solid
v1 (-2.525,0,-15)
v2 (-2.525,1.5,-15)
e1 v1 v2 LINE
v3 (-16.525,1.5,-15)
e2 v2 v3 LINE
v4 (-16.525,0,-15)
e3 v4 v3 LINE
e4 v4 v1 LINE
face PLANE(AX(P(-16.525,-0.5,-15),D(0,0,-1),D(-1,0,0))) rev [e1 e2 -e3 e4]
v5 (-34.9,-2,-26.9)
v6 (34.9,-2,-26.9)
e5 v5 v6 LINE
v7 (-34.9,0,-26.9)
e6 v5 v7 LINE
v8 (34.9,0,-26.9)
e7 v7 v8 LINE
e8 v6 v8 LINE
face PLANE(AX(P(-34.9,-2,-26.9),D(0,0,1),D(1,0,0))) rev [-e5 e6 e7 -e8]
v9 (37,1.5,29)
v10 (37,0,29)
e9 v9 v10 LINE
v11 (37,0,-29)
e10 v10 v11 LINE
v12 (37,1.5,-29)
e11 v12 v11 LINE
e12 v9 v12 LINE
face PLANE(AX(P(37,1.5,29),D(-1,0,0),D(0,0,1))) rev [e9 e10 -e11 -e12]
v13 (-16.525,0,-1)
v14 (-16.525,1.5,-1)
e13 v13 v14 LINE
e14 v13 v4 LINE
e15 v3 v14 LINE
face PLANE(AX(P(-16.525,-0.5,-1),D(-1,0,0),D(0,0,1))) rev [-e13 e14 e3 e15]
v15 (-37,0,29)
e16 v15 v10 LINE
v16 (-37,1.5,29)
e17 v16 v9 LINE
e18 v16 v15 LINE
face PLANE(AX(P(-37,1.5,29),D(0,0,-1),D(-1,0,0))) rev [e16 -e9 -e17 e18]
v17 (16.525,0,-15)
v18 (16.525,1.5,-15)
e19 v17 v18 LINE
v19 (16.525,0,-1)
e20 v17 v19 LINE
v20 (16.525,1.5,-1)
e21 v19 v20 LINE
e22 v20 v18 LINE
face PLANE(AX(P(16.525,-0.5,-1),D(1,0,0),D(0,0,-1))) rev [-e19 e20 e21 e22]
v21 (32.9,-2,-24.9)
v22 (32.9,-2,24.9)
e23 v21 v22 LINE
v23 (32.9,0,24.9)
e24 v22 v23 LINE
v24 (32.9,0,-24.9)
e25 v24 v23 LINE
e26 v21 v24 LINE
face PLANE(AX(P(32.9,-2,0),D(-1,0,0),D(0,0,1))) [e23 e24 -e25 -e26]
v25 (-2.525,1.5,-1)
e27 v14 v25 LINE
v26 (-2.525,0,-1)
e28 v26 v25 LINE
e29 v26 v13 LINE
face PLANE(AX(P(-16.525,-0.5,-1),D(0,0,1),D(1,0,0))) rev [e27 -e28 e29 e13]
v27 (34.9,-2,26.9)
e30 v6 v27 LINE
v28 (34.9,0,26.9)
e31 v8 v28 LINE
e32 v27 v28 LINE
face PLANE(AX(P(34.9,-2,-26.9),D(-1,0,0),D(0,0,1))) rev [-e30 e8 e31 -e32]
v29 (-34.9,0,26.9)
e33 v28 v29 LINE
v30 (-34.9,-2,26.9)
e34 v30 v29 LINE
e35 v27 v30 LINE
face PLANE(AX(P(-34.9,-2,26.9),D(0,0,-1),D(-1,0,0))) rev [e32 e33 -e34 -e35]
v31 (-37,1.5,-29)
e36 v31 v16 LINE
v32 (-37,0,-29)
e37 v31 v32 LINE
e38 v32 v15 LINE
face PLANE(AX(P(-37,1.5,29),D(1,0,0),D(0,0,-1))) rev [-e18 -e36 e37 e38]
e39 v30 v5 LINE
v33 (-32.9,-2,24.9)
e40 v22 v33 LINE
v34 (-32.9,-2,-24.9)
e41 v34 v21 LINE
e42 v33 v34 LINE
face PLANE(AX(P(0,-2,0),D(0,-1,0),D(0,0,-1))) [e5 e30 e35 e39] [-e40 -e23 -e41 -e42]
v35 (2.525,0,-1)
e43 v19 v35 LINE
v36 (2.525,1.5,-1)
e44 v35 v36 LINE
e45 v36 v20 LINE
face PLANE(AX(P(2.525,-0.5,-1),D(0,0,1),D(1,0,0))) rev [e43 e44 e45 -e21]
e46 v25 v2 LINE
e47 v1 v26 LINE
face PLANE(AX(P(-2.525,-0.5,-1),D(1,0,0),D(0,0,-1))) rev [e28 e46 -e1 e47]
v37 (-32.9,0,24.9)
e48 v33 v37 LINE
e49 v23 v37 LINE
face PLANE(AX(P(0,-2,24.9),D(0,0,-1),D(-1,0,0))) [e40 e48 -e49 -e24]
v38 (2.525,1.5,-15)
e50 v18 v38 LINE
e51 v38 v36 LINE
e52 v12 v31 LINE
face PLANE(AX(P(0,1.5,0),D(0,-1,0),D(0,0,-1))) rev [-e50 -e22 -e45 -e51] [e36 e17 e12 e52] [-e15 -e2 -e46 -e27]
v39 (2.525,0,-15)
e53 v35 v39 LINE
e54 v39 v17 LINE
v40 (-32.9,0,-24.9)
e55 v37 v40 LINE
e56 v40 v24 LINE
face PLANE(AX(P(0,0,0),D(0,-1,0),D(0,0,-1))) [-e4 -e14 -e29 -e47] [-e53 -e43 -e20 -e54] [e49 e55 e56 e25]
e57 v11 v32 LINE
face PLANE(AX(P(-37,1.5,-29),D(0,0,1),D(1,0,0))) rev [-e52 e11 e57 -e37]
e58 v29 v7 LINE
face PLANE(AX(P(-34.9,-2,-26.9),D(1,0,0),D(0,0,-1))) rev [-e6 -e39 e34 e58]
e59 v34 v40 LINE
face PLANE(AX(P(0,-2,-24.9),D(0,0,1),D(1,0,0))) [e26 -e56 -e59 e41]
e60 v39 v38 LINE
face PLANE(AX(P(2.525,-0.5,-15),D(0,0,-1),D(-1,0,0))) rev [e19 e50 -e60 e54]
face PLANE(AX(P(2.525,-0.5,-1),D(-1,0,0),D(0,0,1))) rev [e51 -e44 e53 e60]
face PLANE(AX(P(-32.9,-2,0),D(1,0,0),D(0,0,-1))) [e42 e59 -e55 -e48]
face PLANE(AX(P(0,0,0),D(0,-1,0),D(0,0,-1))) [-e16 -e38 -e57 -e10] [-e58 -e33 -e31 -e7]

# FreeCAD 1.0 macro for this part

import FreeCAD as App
import Part
import Sketcher

doc = App.newDocument("Part")
body = doc.addObject("PartDesign::Body", "Body")

# Sketch on XZ plane
sketch1 = body.newObject("Sketcher::SketchObject", "Sketch")
sketch1.AttachmentSupport = (doc.getObject("XZ_Plane"), [""])
sketch1.MapMode = "FlatFace"
sketch1.addGeometry(Part.LineSegment(App.Vector(-37, -29, 0), App.Vector(-37, 29, 0)), False)
sketch1.addGeometry(Part.LineSegment(App.Vector(-37, 29, 0), App.Vector(37, 29, 0)), False)
sketch1.addGeometry(Part.LineSegment(App.Vector(37, 29, 0), App.Vector(37, -29, 0)), False)
sketch1.addGeometry(Part.LineSegment(App.Vector(37, -29, 0), App.Vector(-37, -29, 0)), False)
sketch1.addConstraint(Sketcher.Constraint("Coincident", 0, 2, 1, 1))
sketch1.addConstraint(Sketcher.Constraint("Coincident", 1, 2, 2, 1))
sketch1.addConstraint(Sketcher.Constraint("Coincident", 2, 2, 3, 1))
sketch1.addConstraint(Sketcher.Constraint("Coincident", 3, 2, 0, 1))
sketch1.addConstraint(Sketcher.Constraint("Vertical", 0))
sketch1.addConstraint(Sketcher.Constraint("Horizontal", 1))
sketch1.addConstraint(Sketcher.Constraint("Vertical", 2))
sketch1.addConstraint(Sketcher.Constraint("Horizontal", 3))
sketch1.addConstraint(Sketcher.Constraint("Symmetric", 0, 2, 2, 2, -1, 1))
sketch1.addConstraint(Sketcher.Constraint("DistanceX", 1, 1, 1, 2, 74.0))
sketch1.addConstraint(Sketcher.Constraint("DistanceY", 0, 1, 0, 2, 58.0))
pad1 = body.newObject("PartDesign::Pad", "Pad")
pad1.Profile = sketch1
pad1.Length = 1.5
pad1.Reversed = True

# Sketch on XZ plane
sketch2 = body.newObject("Sketcher::SketchObject", "Sketch001")
sketch2.AttachmentSupport = (doc.getObject("XZ_Plane"), [""])
sketch2.MapMode = "FlatFace"
sketch2.addGeometry(Part.LineSegment(App.Vector(-35, 27, 0), App.Vector(-35, -27, 0)), False)
sketch2.addGeometry(Part.LineSegment(App.Vector(-35, -27, 0), App.Vector(35, -27, 0)), False)
sketch2.addGeometry(Part.LineSegment(App.Vector(35, -27, 0), App.Vector(35, 27, 0)), False)
sketch2.addGeometry(Part.LineSegment(App.Vector(35, 27, 0), App.Vector(-35, 27, 0)), False)
sketch2.addGeometry(Part.LineSegment(App.Vector(33, -25, 0), App.Vector(-33, -25, 0)), False)
sketch2.addGeometry(Part.LineSegment(App.Vector(-33, -25, 0), App.Vector(-33, 25, 0)), False)
sketch2.addGeometry(Part.LineSegment(App.Vector(-33, 25, 0), App.Vector(33, 25, 0)), False)
sketch2.addGeometry(Part.LineSegment(App.Vector(33, 25, 0), App.Vector(33, -25, 0)), False)
sketch2.addConstraint(Sketcher.Constraint("Coincident", 0, 2, 1, 1))
sketch2.addConstraint(Sketcher.Constraint("Coincident", 1, 2, 2, 1))
sketch2.addConstraint(Sketcher.Constraint("Coincident", 2, 2, 3, 1))
sketch2.addConstraint(Sketcher.Constraint("Coincident", 3, 2, 0, 1))
sketch2.addConstraint(Sketcher.Constraint("Coincident", 4, 2, 5, 1))
sketch2.addConstraint(Sketcher.Constraint("Coincident", 5, 2, 6, 1))
sketch2.addConstraint(Sketcher.Constraint("Coincident", 6, 2, 7, 1))
sketch2.addConstraint(Sketcher.Constraint("Coincident", 7, 2, 4, 1))
sketch2.addConstraint(Sketcher.Constraint("Vertical", 0))
sketch2.addConstraint(Sketcher.Constraint("Horizontal", 1))
sketch2.addConstraint(Sketcher.Constraint("Vertical", 2))
sketch2.addConstraint(Sketcher.Constraint("Horizontal", 3))
sketch2.addConstraint(Sketcher.Constraint("Horizontal", 4))
sketch2.addConstraint(Sketcher.Constraint("Vertical", 5))
sketch2.addConstraint(Sketcher.Constraint("Horizontal", 6))
sketch2.addConstraint(Sketcher.Constraint("Vertical", 7))
sketch2.addConstraint(Sketcher.Constraint("Symmetric", 0, 2, 2, 2, -1, 1))
sketch2.addConstraint(Sketcher.Constraint("Symmetric", 4, 2, 6, 2, -1, 1))
sketch2.addConstraint(Sketcher.Constraint("DistanceX", 1, 1, 1, 2, 69.8))
sketch2.addConstraint(Sketcher.Constraint("DistanceX", 4, 2, 4, 1, 65.8))
sketch2.addConstraint(Sketcher.Constraint("DistanceY", 0, 2, 0, 1, 53.8))
sketch2.addConstraint(Sketcher.Constraint("DistanceY", 5, 1, 5, 2, 49.8))
pad2 = body.newObject("PartDesign::Pad", "Pad001")
pad2.Profile = sketch2
pad2.Length = 2

# Sketch on XZ plane
sketch3 = body.newObject("Sketcher::SketchObject", "Sketch002")
sketch3.AttachmentSupport = (doc.getObject("XZ_Plane"), [""])
sketch3.MapMode = "FlatFace"
sketch3.AttachmentOffset = App.Placement(App.Vector(0, 0, -1.5), App.Rotation())
sketch3.addGeometry(Part.LineSegment(App.Vector(-17, -15, 0), App.Vector(-17, -1, 0)), False)
sketch3.addGeometry(Part.LineSegment(App.Vector(-17, -1, 0), App.Vector(-3, -1, 0)), False)
sketch3.addGeometry(Part.LineSegment(App.Vector(-3, -1, 0), App.Vector(-3, -15, 0)), False)
sketch3.addGeometry(Part.LineSegment(App.Vector(-3, -15, 0), App.Vector(-17, -15, 0)), False)
sketch3.addGeometry(Part.LineSegment(App.Vector(3, -15, 0), App.Vector(3, -1, 0)), False)
sketch3.addGeometry(Part.LineSegment(App.Vector(3, -1, 0), App.Vector(17, -1, 0)), False)
sketch3.addGeometry(Part.LineSegment(App.Vector(17, -1, 0), App.Vector(17, -15, 0)), False)
sketch3.addGeometry(Part.LineSegment(App.Vector(17, -15, 0), App.Vector(3, -15, 0)), False)
sketch3.addConstraint(Sketcher.Constraint("Coincident", 0, 2, 1, 1))
sketch3.addConstraint(Sketcher.Constraint("Coincident", 1, 2, 2, 1))
sketch3.addConstraint(Sketcher.Constraint("Coincident", 2, 2, 3, 1))
sketch3.addConstraint(Sketcher.Constraint("Coincident", 3, 2, 0, 1))
sketch3.addConstraint(Sketcher.Constraint("Coincident", 4, 2, 5, 1))
sketch3.addConstraint(Sketcher.Constraint("Coincident", 5, 2, 6, 1))
sketch3.addConstraint(Sketcher.Constraint("Coincident", 6, 2, 7, 1))
sketch3.addConstraint(Sketcher.Constraint("Coincident", 7, 2, 4, 1))
sketch3.addConstraint(Sketcher.Constraint("Vertical", 0))
sketch3.addConstraint(Sketcher.Constraint("Horizontal", 1))
sketch3.addConstraint(Sketcher.Constraint("Vertical", 2))
sketch3.addConstraint(Sketcher.Constraint("Horizontal", 3))
sketch3.addConstraint(Sketcher.Constraint("Vertical", 4))
sketch3.addConstraint(Sketcher.Constraint("Horizontal", 5))
sketch3.addConstraint(Sketcher.Constraint("Vertical", 6))
sketch3.addConstraint(Sketcher.Constraint("Horizontal", 7))
sketch3.addConstraint(Sketcher.Constraint("Symmetric", 1, 2, 4, 2, -2))
sketch3.addConstraint(Sketcher.Constraint("Symmetric", 3, 2, 6, 2, -2))
sketch3.addConstraint(Sketcher.Constraint("Equal", 7, 0))
sketch3.addConstraint(Sketcher.Constraint("DistanceX", 1, 1, 1, 2, 14.0))
sketch3.addConstraint(Sketcher.Constraint("DistanceY", 0, 2, -1, 1, 1.0))
sketch3.addConstraint(Sketcher.Constraint("DistanceX", 1, 2, 4, 2, 5.05))
pocket1 = body.newObject("PartDesign::Pocket", "Pocket")
pocket1.Profile = sketch3
pocket1.Length = 2
pocket1.Reversed = True

doc.recompute()
